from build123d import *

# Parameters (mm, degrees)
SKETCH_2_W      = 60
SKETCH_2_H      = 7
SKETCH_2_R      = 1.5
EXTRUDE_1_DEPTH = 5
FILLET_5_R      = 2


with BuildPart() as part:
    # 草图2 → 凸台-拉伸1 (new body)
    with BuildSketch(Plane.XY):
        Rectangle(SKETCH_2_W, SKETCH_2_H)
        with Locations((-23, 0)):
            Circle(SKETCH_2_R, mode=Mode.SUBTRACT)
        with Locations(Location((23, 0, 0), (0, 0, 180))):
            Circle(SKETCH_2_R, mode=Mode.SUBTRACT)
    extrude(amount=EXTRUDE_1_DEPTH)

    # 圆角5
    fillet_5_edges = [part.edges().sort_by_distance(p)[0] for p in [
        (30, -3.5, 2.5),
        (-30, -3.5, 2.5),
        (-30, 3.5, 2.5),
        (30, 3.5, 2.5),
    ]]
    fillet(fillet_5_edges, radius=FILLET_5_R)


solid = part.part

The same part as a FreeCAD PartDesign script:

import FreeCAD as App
import Part
import Sketcher
from FreeCAD import Vector


def edges_at(feature, points):
    """Names of the edges that pass closest to the given points."""
    edges = feature.Shape.Edges
    near = lambda p: min(range(len(edges)), key=lambda i: edges[i].distToShape(Part.Vertex(*p))[0])
    return sorted({f"Edge{near(p) + 1}" for p in points})

doc = App.newDocument("Part")
params = doc.addObject("Spreadsheet::Sheet", "Params")
for row, (alias, value) in enumerate([
    ("sketch1_diameter", "3 mm"),
    ("sketch1_width", "60 mm"),
    ("sketch1_height", "7 mm"),
    ("pad1_length", "5 mm"),
    ("fillet_radius", "2 mm"),
], start=1):
    params.set(f"A{row}", alias)
    params.set(f"B{row}", "=" + value)
    params.setAlias(f"B{row}", alias)

body = doc.addObject("PartDesign::Body", "Body")

# Sketch on XY plane
sketch1 = body.newObject("Sketcher::SketchObject", "Sketch")
sketch1.AttachmentSupport = (doc.getObject("XY_Plane"), [""])
sketch1.MapMode = "FlatFace"
sketch1.addGeometry([
    Part.LineSegment(Vector(-30, 3.5, 0), Vector(-30, -3.5, 0)),  # 0
    Part.LineSegment(Vector(-30, -3.5, 0), Vector(30, -3.5, 0)),  # 1
    Part.LineSegment(Vector(30, -3.5, 0), Vector(30, 3.5, 0)),  # 2
    Part.LineSegment(Vector(30, 3.5, 0), Vector(-30, 3.5, 0)),  # 3
    Part.Circle(Vector(-23, 0, 0), Vector(0, 0, 1), 1.5),  # 4
    Part.Circle(Vector(23, 0, 0), Vector(0, 0, 1), 1.5),  # 5
], False)
sketch1.addConstraint([
    Sketcher.Constraint("Coincident", 0, 2, 1, 1),
    Sketcher.Constraint("Coincident", 1, 2, 2, 1),
    Sketcher.Constraint("Coincident", 2, 2, 3, 1),
    Sketcher.Constraint("Coincident", 3, 2, 0, 1),
    Sketcher.Constraint("Vertical", 0),
    Sketcher.Constraint("Horizontal", 1),
    Sketcher.Constraint("Vertical", 2),
    Sketcher.Constraint("Horizontal", 3),
    Sketcher.Constraint("Equal", 4, 5),
    Sketcher.Constraint("Symmetric", 4, 3, 5, 3, -1, 1),
    Sketcher.Constraint("Symmetric", 0, 2, 2, 2, -1, 1),
    Sketcher.Constraint("PointOnObject", 4, 3, -1),
    Sketcher.Constraint("Diameter", 4, 3.0),
    Sketcher.Constraint("DistanceX", 1, 1, 1, 2, 60.0),
    Sketcher.Constraint("DistanceY", 0, 2, 0, 1, 7.0),
    Sketcher.Constraint("DistanceX", 4, 3, -1, 1, 23.0),
])
sketch1.setExpression("Constraints[12]", "Params.sketch1_diameter")
sketch1.setExpression("Constraints[13]", "Params.sketch1_width")
sketch1.setExpression("Constraints[14]", "Params.sketch1_height")
pad1 = body.newObject("PartDesign::Pad", "Pad")
pad1.Profile = sketch1
pad1.setExpression("Length", "Params.pad1_length")
doc.recompute()

fillet = body.newObject("PartDesign::Fillet", "Fillet")
fillet.Base = (pad1, edges_at(pad1, [
    (30, -3.5, 2.5),
    (-30, -3.5, 2.5),
    (-30, 3.5, 2.5),
    (30, 3.5, 2.5),
]))
fillet.setExpression("Radius", "Params.fillet_radius")

doc.recompute()
